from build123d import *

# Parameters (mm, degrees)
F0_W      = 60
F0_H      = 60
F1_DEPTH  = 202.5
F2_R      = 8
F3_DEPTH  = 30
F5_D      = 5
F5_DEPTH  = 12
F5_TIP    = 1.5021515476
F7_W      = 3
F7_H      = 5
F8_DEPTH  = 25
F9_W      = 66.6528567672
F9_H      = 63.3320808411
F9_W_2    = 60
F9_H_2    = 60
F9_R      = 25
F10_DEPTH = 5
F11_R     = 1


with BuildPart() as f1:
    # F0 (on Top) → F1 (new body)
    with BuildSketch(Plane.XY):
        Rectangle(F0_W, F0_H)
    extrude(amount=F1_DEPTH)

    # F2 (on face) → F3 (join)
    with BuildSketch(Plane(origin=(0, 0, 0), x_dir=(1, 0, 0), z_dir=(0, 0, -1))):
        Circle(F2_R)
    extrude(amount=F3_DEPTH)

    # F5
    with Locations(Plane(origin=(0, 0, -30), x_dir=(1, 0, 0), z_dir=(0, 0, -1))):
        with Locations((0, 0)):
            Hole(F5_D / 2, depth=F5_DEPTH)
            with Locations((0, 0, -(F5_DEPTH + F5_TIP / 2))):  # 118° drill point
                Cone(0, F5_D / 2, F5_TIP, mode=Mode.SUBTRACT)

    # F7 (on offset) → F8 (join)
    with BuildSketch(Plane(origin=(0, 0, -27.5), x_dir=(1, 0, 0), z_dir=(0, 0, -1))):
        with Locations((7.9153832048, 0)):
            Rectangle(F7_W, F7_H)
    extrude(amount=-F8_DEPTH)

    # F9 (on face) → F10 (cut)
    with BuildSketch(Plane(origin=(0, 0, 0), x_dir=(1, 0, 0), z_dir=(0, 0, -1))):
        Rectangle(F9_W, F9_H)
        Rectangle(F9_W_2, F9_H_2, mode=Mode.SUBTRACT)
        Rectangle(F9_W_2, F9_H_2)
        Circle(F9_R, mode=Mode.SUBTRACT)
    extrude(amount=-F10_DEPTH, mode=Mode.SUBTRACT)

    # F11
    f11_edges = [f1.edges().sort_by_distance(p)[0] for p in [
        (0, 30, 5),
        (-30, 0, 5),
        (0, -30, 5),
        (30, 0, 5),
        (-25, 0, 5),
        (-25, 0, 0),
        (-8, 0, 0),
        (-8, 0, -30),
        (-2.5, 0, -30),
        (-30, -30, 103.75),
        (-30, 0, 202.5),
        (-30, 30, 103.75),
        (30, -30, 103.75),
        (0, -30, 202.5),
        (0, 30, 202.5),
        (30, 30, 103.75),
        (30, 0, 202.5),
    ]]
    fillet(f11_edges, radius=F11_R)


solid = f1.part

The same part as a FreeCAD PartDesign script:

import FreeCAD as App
import Part
import Sketcher
Q = App.Units.Quantity


def edges_at(feature, points):
    """Names of the edges that pass closest to the given points."""
    edges = feature.Shape.Edges
    near = lambda p: min(range(len(edges)), key=lambda i: edges[i].distToShape(Part.Vertex(*p))[0])
    return sorted({f"Edge{near(p) + 1}" for p in points})


def add_polygon(sketch, points):
    """Adds a closed chain of lines whose ends are joined by coincident constraints."""
    first, n = sketch.GeometryCount, len(points)
    for a, b in zip(points, points[1:] + points[:1]):
        sketch.addGeometry(Part.LineSegment(App.Vector(*a, 0), App.Vector(*b, 0)), False)
    for i in range(n):
        sketch.addConstraint(Sketcher.Constraint("Coincident", first + i, 2, first + (i + 1) % n, 1))

doc = App.newDocument("Part")
body = doc.addObject("PartDesign::Body", "Body")

# Sketch on XY plane
sketch1 = body.newObject("Sketcher::SketchObject", "Sketch")
sketch1.AttachmentSupport = (doc.getObject("XY_Plane"), [""])
sketch1.MapMode = "FlatFace"
add_polygon(sketch1, [(-30, 30), (-30, -30), (30, -30), (30, 30)])  # lines 0-3
sketch1.addConstraint(Sketcher.Constraint("Vertical", 0))
sketch1.addConstraint(Sketcher.Constraint("Horizontal", 1))
sketch1.addConstraint(Sketcher.Constraint("Vertical", 2))
sketch1.addConstraint(Sketcher.Constraint("Horizontal", 3))
sketch1.addConstraint(Sketcher.Constraint("Symmetric", 0, 2, 2, 2, -1, 1))
sketch1.addConstraint(Sketcher.Constraint("Equal", 3, 0))
sketch1.addConstraint(Sketcher.Constraint("DistanceX", 1, 1, 1, 2, Q("60 mm")))
pad1 = body.newObject("PartDesign::Pad", "Pad")
pad1.Profile = sketch1
pad1.Length = 202.5

# Sketch on XY plane
sketch2 = body.newObject("Sketcher::SketchObject", "Sketch001")
sketch2.AttachmentSupport = (doc.getObject("XY_Plane"), [""])
sketch2.MapMode = "FlatFace"
sketch2.addGeometry(Part.Circle(App.Vector(0, 0, 0), App.Vector(0, 0, 1), 8), False)
sketch2.addConstraint(Sketcher.Constraint("Coincident", 0, 3, -1, 1))
sketch2.addConstraint(Sketcher.Constraint("Diameter", 0, Q("16 mm")))
pad2 = body.newObject("PartDesign::Pad", "Pad001")
pad2.Profile = sketch2
pad2.Length = 30
pad2.Reversed = True

# Sketch on XY plane
sketch3 = body.newObject("Sketcher::SketchObject", "Sketch002")
sketch3.AttachmentSupport = (doc.getObject("XY_Plane"), [""])
sketch3.MapMode = "FlatFace"
sketch3.AttachmentOffset = App.Placement(App.Vector(0, 0, -30), App.Rotation())
sketch3.addGeometry(Part.Circle(App.Vector(0, 0, 0), App.Vector(0, 0, 1), 2.5), False)
sketch3.addConstraint(Sketcher.Constraint("Coincident", 0, 3, -1, 1))
sketch3.addConstraint(Sketcher.Constraint("Diameter", 0, Q("5 mm")))
doc.recompute()
hole = body.newObject("PartDesign::Hole", "Hole")
hole.Profile = sketch3
hole.ThreadType = "None"
hole.Diameter = 5
hole.DepthType = "Dimension"
hole.Depth = 12
hole.DrillPoint = "Angled"
hole.DrillPointAngle = 118
hole.Reversed = True

# Sketch on XY plane
sketch4 = body.newObject("Sketcher::SketchObject", "Sketch003")
sketch4.AttachmentSupport = (doc.getObject("XY_Plane"), [""])
sketch4.MapMode = "FlatFace"
sketch4.AttachmentOffset = App.Placement(App.Vector(0, 0, -27.5), App.Rotation())
add_polygon(sketch4, [(6.415383, -2.5), (6.415383, 2.5), (9.415383, 2.5), (9.415383, -2.5)])  # lines 0-3
sketch4.addConstraint(Sketcher.Constraint("Vertical", 0))
sketch4.addConstraint(Sketcher.Constraint("Horizontal", 1))
sketch4.addConstraint(Sketcher.Constraint("Vertical", 2))
sketch4.addConstraint(Sketcher.Constraint("Horizontal", 3))
sketch4.addConstraint(Sketcher.Constraint("DistanceX", 1, 1, 1, 2, Q("3 mm")))
sketch4.addConstraint(Sketcher.Constraint("DistanceY", 0, 1, 0, 2, Q("5 mm")))
sketch4.addConstraint(Sketcher.Constraint("DistanceY", -1, 1, 0, 2, Q("2.5 mm")))
sketch4.addConstraint(Sketcher.Constraint("DistanceX", -1, 1, 0, 2, Q("6.415383 mm")))
pad3 = body.newObject("PartDesign::Pad", "Pad002")
pad3.Profile = sketch4
pad3.Length = 25

# Sketch on XY plane
sketch5 = body.newObject("Sketcher::SketchObject", "Sketch004")
sketch5.AttachmentSupport = (doc.getObject("XY_Plane"), [""])
sketch5.MapMode = "FlatFace"
add_polygon(sketch5, [(-33.326428, -31.66604), (-33.326428, 31.66604), (33.326428, 31.66604), (33.326428, -31.66604)])  # lines 0-3
sketch5.addGeometry(Part.Circle(App.Vector(0, 0, 0), App.Vector(0, 0, 1), 25), False)  # 4
sketch5.addConstraint(Sketcher.Constraint("Vertical", 0))
sketch5.addConstraint(Sketcher.Constraint("Horizontal", 1))
sketch5.addConstraint(Sketcher.Constraint("Vertical", 2))
sketch5.addConstraint(Sketcher.Constraint("Horizontal", 3))
sketch5.addConstraint(Sketcher.Constraint("Coincident", 4, 3, -1, 1))
sketch5.addConstraint(Sketcher.Constraint("Symmetric", 0, 2, 2, 2, -1, 1))
sketch5.addConstraint(Sketcher.Constraint("Diameter", 4, Q("50 mm")))
sketch5.addConstraint(Sketcher.Constraint("DistanceY", 0, 1, 0, 2, Q("63.332081 mm")))
sketch5.addConstraint(Sketcher.Constraint("DistanceX", 1, 1, 1, 2, Q("66.652857 mm")))
pocket1 = body.newObject("PartDesign::Pocket", "Pocket")
pocket1.Profile = sketch5
pocket1.Length = 5
pocket1.Reversed = True
doc.recompute()

fillet = body.newObject("PartDesign::Fillet", "Fillet")
fillet.Base = (pocket1, edges_at(pocket1, [
    (0, 30, 5),
    (-30, 0, 5),
    (0, -30, 5),
    (30, 0, 5),
    (-25, 0, 5),
    (-25, 0, 0),
    (-8, 0, 0),
    (-8, 0, -30),
    (2.5, 0, -30),
    (-30, -30, 103.75),
    (-30, 0, 202.5),
    (-30, 30, 103.75),
    (30, -30, 103.75),
    (0, -30, 202.5),
    (0, 30, 202.5),
    (30, 30, 103.75),
    (30, 0, 202.5),
]))
fillet.Radius = 1

doc.recompute()
